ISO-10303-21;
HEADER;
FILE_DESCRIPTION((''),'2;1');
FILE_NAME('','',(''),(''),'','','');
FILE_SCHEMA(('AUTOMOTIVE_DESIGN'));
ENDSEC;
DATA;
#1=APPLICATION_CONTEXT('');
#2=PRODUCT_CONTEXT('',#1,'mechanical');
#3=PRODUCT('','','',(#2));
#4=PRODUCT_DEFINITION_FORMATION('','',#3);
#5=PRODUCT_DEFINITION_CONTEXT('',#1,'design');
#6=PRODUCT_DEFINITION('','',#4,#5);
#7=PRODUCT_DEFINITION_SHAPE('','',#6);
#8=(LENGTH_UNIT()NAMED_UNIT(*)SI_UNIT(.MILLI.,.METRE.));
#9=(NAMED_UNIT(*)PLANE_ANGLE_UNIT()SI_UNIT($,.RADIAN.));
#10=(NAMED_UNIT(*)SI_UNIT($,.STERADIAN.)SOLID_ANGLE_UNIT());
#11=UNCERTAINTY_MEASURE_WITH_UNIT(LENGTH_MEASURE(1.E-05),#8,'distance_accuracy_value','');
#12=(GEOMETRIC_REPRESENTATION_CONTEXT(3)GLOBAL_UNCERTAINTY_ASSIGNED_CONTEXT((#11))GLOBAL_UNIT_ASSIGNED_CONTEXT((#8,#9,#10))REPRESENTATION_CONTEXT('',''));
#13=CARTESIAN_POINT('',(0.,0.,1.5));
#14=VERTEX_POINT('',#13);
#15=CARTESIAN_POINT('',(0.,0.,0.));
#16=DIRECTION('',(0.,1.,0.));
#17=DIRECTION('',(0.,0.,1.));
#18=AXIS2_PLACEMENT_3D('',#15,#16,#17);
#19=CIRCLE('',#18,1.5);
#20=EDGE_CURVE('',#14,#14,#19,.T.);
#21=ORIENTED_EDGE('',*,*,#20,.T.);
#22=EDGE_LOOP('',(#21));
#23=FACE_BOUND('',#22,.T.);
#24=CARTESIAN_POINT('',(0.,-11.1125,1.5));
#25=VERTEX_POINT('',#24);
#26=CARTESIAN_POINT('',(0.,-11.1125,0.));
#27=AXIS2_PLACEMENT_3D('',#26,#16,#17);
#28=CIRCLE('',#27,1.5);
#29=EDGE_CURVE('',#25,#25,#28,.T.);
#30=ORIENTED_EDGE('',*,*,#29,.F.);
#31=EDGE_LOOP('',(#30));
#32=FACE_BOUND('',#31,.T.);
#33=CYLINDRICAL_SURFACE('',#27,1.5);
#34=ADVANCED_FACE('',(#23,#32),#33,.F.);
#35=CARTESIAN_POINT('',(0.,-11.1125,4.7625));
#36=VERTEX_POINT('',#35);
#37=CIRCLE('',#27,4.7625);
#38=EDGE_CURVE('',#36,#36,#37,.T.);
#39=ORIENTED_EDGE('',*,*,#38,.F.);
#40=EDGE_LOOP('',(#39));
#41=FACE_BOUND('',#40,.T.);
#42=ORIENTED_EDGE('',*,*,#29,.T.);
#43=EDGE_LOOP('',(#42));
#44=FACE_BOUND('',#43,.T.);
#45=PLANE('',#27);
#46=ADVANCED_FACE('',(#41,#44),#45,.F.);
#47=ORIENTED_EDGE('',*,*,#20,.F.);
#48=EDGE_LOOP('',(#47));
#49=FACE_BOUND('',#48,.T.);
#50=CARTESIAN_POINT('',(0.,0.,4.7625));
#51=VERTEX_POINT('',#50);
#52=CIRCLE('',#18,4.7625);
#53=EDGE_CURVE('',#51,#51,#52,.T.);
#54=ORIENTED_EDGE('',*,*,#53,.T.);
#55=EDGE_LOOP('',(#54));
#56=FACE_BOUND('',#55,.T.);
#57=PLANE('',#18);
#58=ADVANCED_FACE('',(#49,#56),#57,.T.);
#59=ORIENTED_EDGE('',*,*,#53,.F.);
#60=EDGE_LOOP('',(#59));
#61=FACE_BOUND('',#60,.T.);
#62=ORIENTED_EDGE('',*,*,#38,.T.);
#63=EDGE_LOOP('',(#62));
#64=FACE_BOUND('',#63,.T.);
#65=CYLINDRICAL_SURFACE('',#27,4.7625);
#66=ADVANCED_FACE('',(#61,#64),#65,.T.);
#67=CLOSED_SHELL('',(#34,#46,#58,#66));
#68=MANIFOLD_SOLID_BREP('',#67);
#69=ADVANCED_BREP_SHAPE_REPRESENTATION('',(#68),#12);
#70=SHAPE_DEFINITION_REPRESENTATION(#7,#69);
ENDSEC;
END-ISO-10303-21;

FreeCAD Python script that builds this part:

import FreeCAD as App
import Part
import Sketcher
from FreeCAD import Vector
Q = App.Units.Quantity

doc = App.newDocument("Part")
body = doc.addObject("PartDesign::Body", "Body")

# Sketch on XZ plane
sketch1 = body.newObject("Sketcher::SketchObject", "Sketch")
sketch1.AttachmentSupport = (doc.getObject("XZ_Plane"), [""])
sketch1.MapMode = "FlatFace"
sketch1.addGeometry(Part.Circle(Vector(0, 0, 0), Vector(0, 0, 1), 4.8), False)
sketch1.addGeometry(Part.Circle(Vector(0, 0, 0), Vector(0, 0, 1), 1.5), False)
sketch1.addConstraint(Sketcher.Constraint("Coincident", 0, 3, -1, 1))
sketch1.addConstraint(Sketcher.Constraint("Coincident", 1, 3, -1, 1))
sketch1.addConstraint(Sketcher.Constraint("Diameter", 0, Q("0.375 in")))
sketch1.addConstraint(Sketcher.Constraint("Diameter", 1, Q("3 mm")))
pad1 = body.newObject("PartDesign::Pad", "Pad")
pad1.Profile = sketch1
pad1.Length = Q("0.4375 in")

doc.recompute()
